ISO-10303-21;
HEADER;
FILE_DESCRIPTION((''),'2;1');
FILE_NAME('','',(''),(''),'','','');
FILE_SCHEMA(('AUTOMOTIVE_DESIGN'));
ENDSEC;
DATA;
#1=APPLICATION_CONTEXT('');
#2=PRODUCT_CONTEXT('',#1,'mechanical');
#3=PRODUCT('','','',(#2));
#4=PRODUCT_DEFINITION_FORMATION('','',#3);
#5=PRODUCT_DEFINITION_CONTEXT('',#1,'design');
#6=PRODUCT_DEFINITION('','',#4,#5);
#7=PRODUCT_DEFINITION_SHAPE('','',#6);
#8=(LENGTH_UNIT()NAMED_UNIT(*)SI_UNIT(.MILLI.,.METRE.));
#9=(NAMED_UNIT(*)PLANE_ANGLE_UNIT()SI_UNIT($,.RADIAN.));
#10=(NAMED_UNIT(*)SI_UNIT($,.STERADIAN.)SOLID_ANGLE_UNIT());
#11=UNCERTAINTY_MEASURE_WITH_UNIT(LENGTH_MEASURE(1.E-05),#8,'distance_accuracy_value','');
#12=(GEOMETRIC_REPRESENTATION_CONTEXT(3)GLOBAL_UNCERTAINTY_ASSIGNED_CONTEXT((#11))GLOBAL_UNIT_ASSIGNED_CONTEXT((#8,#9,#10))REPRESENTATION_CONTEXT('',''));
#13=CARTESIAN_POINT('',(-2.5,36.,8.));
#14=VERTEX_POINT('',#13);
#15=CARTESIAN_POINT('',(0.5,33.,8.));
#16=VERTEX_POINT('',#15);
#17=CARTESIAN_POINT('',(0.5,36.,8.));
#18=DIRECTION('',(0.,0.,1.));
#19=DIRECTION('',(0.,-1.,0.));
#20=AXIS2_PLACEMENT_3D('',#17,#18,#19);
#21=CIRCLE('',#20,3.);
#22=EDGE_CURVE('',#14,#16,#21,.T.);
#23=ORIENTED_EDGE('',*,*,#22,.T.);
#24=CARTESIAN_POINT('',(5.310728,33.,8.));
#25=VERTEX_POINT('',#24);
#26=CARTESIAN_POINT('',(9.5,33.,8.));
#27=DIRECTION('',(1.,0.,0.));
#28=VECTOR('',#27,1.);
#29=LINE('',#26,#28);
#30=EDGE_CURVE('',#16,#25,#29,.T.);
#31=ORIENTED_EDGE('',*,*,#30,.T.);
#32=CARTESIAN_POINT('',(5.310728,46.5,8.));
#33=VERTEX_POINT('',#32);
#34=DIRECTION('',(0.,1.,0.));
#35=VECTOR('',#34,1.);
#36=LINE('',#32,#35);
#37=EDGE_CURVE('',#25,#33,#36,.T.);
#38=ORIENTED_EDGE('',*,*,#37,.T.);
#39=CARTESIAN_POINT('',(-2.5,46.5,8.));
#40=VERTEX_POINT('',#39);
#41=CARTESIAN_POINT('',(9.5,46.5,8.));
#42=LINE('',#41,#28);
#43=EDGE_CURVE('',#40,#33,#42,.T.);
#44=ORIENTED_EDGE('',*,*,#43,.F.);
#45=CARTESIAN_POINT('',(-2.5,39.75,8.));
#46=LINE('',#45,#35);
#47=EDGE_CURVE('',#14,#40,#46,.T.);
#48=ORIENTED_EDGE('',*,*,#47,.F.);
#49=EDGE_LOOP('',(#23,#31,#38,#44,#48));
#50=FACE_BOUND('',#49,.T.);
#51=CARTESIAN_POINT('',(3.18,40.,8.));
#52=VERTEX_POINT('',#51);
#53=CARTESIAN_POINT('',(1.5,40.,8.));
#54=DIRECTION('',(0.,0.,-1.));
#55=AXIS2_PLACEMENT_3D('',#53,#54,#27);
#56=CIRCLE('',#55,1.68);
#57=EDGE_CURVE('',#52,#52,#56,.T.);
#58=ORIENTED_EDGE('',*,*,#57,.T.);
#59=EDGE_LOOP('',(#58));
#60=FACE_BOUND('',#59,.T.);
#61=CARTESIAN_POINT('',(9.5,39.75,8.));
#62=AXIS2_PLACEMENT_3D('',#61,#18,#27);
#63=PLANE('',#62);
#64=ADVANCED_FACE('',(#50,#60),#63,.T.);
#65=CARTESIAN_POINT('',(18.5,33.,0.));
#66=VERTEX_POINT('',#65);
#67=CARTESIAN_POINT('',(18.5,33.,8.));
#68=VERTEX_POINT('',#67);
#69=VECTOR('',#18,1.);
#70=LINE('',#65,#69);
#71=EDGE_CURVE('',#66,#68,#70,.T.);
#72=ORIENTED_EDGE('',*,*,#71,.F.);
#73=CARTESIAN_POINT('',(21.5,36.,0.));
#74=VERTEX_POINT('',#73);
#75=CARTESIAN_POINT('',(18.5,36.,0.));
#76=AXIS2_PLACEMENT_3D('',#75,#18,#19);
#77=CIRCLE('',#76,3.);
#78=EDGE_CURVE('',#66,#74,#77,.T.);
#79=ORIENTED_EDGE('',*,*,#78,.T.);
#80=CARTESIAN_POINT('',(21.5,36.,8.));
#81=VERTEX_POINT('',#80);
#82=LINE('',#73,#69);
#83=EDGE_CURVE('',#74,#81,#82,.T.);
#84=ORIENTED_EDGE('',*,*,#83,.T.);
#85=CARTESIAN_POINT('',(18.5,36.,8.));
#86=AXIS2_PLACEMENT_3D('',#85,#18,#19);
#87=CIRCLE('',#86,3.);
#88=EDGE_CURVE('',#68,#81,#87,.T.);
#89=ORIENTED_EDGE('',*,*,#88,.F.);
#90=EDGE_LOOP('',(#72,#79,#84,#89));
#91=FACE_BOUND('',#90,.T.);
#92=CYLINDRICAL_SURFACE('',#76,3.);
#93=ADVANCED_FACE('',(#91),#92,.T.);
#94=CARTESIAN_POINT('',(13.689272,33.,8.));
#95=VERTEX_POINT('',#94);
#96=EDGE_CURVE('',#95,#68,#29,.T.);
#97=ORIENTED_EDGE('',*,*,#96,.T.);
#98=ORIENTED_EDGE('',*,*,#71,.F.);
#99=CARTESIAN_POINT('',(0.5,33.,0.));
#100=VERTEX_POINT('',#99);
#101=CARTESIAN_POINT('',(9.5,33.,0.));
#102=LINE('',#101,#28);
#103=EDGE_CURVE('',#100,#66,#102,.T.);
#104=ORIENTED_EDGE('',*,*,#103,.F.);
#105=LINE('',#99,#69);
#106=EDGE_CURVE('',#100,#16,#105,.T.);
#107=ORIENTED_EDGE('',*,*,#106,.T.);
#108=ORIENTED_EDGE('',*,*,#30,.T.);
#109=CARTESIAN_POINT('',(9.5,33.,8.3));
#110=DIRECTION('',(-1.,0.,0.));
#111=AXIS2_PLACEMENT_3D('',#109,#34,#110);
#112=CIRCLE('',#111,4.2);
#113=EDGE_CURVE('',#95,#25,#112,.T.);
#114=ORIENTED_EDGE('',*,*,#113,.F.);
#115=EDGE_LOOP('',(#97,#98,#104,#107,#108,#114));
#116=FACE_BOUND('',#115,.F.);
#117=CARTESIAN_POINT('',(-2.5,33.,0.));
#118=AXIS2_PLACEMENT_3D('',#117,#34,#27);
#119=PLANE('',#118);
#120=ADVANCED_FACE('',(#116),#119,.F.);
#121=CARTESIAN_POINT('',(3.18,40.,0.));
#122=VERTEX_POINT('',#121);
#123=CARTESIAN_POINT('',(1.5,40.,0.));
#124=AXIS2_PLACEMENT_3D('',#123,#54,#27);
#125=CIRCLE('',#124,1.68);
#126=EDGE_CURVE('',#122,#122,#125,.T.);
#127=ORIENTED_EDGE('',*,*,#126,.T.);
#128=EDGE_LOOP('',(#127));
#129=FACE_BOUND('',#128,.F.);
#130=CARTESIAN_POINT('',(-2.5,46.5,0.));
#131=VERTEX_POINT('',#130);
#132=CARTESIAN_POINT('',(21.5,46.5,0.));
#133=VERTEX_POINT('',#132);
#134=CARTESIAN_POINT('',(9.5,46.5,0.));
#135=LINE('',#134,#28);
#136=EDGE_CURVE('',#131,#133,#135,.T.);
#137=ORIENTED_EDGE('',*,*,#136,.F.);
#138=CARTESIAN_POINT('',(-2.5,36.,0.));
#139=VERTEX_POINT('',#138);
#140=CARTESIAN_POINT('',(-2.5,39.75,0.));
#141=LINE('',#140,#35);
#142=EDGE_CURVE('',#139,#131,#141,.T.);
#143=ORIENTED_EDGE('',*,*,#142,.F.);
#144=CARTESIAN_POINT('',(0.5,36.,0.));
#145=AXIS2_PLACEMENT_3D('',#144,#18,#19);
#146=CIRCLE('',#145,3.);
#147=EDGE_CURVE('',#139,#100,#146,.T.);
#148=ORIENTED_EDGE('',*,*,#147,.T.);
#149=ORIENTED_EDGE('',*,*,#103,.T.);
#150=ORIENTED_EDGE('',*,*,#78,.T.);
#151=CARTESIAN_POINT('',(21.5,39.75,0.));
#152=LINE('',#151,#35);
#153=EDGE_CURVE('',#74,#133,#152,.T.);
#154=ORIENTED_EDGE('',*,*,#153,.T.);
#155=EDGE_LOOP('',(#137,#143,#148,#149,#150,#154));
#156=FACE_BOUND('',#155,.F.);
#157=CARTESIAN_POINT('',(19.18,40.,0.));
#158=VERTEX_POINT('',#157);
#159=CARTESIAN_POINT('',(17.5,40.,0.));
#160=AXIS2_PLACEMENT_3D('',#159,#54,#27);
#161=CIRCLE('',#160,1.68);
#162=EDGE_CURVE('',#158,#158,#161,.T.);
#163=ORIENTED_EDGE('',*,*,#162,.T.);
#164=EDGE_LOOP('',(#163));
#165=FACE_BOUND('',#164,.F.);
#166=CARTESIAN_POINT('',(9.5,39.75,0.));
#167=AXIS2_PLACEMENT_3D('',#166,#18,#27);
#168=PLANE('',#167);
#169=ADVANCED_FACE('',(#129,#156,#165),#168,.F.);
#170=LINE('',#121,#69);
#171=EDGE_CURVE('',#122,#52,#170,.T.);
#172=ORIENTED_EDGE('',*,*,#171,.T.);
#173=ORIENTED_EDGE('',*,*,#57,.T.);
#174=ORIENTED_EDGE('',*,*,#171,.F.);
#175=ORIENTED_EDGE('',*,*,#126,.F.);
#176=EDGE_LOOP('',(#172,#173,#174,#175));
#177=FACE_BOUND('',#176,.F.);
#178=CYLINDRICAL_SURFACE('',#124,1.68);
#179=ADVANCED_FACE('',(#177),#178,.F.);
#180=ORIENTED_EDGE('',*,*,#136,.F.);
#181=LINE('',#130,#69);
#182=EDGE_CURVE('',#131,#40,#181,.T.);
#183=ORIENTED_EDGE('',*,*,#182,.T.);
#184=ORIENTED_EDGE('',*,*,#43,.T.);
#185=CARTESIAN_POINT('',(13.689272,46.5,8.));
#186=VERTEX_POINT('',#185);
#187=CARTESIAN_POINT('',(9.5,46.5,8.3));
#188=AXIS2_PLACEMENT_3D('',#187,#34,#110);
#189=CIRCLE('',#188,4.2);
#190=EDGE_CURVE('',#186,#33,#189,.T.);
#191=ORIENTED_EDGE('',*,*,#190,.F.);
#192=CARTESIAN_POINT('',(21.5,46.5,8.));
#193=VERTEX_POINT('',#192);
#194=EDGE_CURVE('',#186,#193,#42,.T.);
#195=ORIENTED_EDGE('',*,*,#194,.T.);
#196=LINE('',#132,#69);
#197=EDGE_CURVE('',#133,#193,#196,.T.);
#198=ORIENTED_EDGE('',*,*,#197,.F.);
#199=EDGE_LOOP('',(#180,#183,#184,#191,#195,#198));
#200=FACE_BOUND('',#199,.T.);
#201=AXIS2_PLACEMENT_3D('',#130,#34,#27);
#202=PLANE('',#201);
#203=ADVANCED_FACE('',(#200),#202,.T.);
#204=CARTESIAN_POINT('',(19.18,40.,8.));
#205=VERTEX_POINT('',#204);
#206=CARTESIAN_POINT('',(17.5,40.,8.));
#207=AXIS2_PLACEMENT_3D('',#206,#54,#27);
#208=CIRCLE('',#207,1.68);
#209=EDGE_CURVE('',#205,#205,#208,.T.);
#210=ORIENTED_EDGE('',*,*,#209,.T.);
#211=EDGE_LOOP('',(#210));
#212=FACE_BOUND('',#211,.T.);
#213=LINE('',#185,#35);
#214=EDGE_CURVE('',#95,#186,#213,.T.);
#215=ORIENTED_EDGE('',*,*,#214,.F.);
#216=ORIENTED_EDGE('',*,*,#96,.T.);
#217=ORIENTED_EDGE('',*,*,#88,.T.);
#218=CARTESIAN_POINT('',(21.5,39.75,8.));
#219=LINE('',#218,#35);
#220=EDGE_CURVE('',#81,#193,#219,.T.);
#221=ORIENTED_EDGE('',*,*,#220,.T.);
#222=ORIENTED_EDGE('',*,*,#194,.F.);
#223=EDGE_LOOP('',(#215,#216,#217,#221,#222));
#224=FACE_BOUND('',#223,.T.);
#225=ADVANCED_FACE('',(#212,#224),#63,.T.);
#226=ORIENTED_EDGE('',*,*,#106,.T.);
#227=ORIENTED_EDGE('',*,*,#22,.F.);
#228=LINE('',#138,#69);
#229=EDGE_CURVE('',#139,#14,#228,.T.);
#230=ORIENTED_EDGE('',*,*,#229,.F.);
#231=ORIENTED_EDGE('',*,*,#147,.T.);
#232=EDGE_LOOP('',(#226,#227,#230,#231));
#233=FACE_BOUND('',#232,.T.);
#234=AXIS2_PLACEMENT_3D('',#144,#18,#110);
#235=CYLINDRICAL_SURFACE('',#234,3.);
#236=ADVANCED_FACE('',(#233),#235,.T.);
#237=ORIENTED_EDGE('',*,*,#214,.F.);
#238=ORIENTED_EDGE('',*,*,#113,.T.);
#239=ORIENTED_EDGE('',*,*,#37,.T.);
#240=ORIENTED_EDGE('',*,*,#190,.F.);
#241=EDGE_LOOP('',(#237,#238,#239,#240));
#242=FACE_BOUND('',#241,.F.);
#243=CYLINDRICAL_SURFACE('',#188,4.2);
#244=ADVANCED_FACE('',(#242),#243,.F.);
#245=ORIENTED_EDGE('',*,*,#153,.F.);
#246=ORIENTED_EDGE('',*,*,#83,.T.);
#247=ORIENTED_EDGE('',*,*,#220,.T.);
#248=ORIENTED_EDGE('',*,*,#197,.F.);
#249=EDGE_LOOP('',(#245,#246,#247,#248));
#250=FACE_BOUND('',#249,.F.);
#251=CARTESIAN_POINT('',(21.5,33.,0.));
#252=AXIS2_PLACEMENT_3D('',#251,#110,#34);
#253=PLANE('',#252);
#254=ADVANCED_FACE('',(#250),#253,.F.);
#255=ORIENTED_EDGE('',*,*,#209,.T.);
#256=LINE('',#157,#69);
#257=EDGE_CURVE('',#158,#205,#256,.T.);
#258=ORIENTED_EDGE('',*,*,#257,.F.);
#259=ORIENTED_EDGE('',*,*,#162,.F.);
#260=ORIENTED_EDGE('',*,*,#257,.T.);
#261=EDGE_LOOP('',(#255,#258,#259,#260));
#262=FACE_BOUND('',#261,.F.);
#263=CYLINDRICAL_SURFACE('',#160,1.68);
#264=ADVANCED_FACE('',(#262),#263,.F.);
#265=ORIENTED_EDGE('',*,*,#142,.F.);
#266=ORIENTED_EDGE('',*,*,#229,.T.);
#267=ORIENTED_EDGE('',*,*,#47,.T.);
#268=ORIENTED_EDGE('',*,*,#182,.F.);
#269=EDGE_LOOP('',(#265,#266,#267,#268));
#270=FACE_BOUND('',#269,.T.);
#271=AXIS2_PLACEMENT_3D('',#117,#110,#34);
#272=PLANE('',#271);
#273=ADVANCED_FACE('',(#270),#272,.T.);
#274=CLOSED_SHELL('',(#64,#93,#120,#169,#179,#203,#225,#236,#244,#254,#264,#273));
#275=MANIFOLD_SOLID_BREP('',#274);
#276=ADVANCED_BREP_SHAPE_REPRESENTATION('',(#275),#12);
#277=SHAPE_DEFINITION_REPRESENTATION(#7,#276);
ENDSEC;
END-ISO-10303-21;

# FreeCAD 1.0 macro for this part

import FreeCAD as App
import Part
import Sketcher
from FreeCAD import Vector
Q = App.Units.Quantity


def edges_at(feature, points):
    """Names of the edges that pass closest to the given points."""
    edges = feature.Shape.Edges
    near = lambda p: min(range(len(edges)), key=lambda i: edges[i].distToShape(Part.Vertex(*p))[0])
    return sorted({f"Edge{near(p) + 1}" for p in points})

doc = App.newDocument("Part")
params = doc.addObject("Spreadsheet::Sheet", "Params")
for row, (alias, value) in enumerate([
    ("sketch1_width", "24 mm"),
    ("sketch1_height", "13.5 mm"),
    ("pad1_length", "8 mm"),
    ("sketch2_diameter", "8.4 mm"),
    ("pocket1_length", "14 mm"),
    ("sketch3_diameter", "3.36 mm"),
    ("fillet_radius", "3 mm"),
], start=1):
    params.set(f"A{row}", alias)
    params.set(f"B{row}", "=" + value)
    params.setAlias(f"B{row}", alias)

body = doc.addObject("PartDesign::Body", "Body")

sketch1 = body.newObject("Sketcher::SketchObject", "Sketch")
sketch1.AttachmentSupport = (doc.getObject("XY_Plane"), [""])
sketch1.MapMode = "FlatFace"
sketch1.addGeometry(Part.LineSegment(Vector(-2, 46, 0), Vector(-2, 33, 0)), False)
sketch1.addGeometry(Part.LineSegment(Vector(-2, 33, 0), Vector(22, 33, 0)), False)
sketch1.addGeometry(Part.LineSegment(Vector(22, 33, 0), Vector(22, 46, 0)), False)
sketch1.addGeometry(Part.LineSegment(Vector(22, 46, 0), Vector(-2, 46, 0)), False)
sketch1.addConstraint(Sketcher.Constraint("Coincident", 0, 2, 1, 1))
sketch1.addConstraint(Sketcher.Constraint("Coincident", 1, 2, 2, 1))
sketch1.addConstraint(Sketcher.Constraint("Coincident", 2, 2, 3, 1))
sketch1.addConstraint(Sketcher.Constraint("Coincident", 3, 2, 0, 1))
sketch1.addConstraint(Sketcher.Constraint("Vertical", 0))
sketch1.addConstraint(Sketcher.Constraint("Horizontal", 1))
sketch1.addConstraint(Sketcher.Constraint("Vertical", 2))
sketch1.addConstraint(Sketcher.Constraint("Horizontal", 3))
sketch1.addConstraint(Sketcher.Constraint("DistanceX", 1, 1, 1, 2, Q("24 mm")))
sketch1.addConstraint(Sketcher.Constraint("DistanceY", 0, 2, 0, 1, Q("13.5 mm")))
sketch1.addConstraint(Sketcher.Constraint("DistanceY", -1, 1, 0, 2, Q("33 mm")))
sketch1.addConstraint(Sketcher.Constraint("DistanceX", 0, 2, -1, 1, Q("2.5 mm")))
sketch1.setExpression("Constraints[8]", "Params.sketch1_width")
sketch1.setExpression("Constraints[9]", "Params.sketch1_height")
pad1 = body.newObject("PartDesign::Pad", "Pad")
pad1.Profile = sketch1
pad1.setExpression("Length", "Params.pad1_length")

sketch2 = body.newObject("Sketcher::SketchObject", "Sketch001")
sketch2.AttachmentSupport = (doc.getObject("XZ_Plane"), [""])
sketch2.MapMode = "FlatFace"
sketch2.AttachmentOffset = App.Placement(Vector(0, 0, -46.5), App.Rotation())
sketch2.addGeometry(Part.Circle(Vector(9.5, 8.3, 0), Vector(0, 0, 1), 4.2), False)
sketch2.addConstraint(Sketcher.Constraint("Diameter", 0, Q("8.4 mm")))
sketch2.addConstraint(Sketcher.Constraint("DistanceX", -1, 1, 0, 3, Q("9.5 mm")))
sketch2.addConstraint(Sketcher.Constraint("DistanceY", -1, 1, 0, 3, Q("8.3 mm")))
sketch2.setExpression("Constraints[0]", "Params.sketch2_diameter")
pocket1 = body.newObject("PartDesign::Pocket", "Pocket")
pocket1.Profile = sketch2
pocket1.setExpression("Length", "Params.pocket1_length")
pocket1.Reversed = True

sketch3 = body.newObject("Sketcher::SketchObject", "Sketch002")
sketch3.AttachmentSupport = (doc.getObject("XY_Plane"), [""])
sketch3.MapMode = "FlatFace"
sketch3.addGeometry(Part.Circle(Vector(1.5, 40, 0), Vector(0, 0, 1), 1.7), False)
sketch3.addGeometry(Part.Circle(Vector(17.5, 40, 0), Vector(0, 0, 1), 1.7), False)
sketch3.addConstraint(Sketcher.Constraint("Equal", 0, 1))
sketch3.addConstraint(Sketcher.Constraint("Horizontal", 0, 3, 1, 3))
sketch3.addConstraint(Sketcher.Constraint("Diameter", 0, Q("3.36 mm")))
sketch3.addConstraint(Sketcher.Constraint("DistanceY", -1, 1, 0, 3, Q("40 mm")))
sketch3.addConstraint(Sketcher.Constraint("DistanceX", 0, 3, 1, 3, Q("16 mm")))
sketch3.addConstraint(Sketcher.Constraint("DistanceX", -1, 1, 0, 3, Q("1.5 mm")))
sketch3.setExpression("Constraints[2]", "Params.sketch3_diameter")
pocket2 = body.newObject("PartDesign::Pocket", "Pocket001")
pocket2.Profile = sketch3
pocket2.Type = "ThroughAll"
pocket2.Reversed = True
doc.recompute()

fillet = body.newObject("PartDesign::Fillet", "Fillet")
fillet.Base = (pocket2, edges_at(pocket2, [(21.5, 33, 4), (-2.5, 33, 4)]))
fillet.setExpression("Radius", "Params.fillet_radius")

doc.recompute()
